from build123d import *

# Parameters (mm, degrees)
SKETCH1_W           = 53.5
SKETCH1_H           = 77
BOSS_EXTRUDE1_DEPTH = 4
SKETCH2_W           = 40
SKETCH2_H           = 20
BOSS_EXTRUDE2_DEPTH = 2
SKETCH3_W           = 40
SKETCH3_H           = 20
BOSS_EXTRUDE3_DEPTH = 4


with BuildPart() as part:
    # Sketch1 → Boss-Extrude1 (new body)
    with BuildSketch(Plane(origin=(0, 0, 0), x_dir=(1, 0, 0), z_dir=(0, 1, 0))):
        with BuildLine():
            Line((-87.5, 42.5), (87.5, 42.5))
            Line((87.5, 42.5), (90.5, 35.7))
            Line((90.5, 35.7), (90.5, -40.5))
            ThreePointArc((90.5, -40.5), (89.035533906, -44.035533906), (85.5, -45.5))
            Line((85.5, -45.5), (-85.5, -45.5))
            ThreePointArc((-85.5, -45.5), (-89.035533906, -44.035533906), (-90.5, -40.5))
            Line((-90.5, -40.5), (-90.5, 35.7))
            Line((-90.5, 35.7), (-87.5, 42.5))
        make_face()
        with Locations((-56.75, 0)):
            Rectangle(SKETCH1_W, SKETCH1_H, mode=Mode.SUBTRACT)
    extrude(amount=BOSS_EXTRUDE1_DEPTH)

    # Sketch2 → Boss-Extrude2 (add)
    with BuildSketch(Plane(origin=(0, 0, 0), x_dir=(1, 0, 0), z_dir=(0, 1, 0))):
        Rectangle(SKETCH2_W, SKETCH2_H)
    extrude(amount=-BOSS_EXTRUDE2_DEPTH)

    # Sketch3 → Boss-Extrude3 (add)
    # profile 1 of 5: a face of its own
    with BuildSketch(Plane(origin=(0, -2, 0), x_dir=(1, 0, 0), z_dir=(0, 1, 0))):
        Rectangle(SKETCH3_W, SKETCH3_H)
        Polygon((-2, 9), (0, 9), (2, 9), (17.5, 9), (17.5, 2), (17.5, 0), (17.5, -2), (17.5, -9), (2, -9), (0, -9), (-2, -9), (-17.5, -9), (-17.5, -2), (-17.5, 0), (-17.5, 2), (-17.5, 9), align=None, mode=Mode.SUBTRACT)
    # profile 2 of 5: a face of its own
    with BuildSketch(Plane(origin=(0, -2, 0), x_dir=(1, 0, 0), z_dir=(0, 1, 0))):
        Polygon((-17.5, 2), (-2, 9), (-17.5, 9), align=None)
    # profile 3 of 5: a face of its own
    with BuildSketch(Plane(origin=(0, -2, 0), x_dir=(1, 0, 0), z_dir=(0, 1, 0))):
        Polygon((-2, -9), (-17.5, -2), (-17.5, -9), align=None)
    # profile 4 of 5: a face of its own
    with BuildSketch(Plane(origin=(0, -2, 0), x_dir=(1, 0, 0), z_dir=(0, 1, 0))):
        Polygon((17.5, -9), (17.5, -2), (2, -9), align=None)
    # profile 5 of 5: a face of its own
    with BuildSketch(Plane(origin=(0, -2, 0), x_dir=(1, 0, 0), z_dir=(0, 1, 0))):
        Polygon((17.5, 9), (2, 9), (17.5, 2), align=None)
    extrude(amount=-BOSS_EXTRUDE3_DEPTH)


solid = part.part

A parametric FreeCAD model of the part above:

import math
import FreeCAD as App
import Part
import Sketcher
Q = App.Units.Quantity

doc = App.newDocument("Part")
body = doc.addObject("PartDesign::Body", "Body")

# Sketch on XZ plane
sketch1 = doc.addObject("Sketcher::SketchObject", "Sketch")
body.addObject(sketch1)
sketch1.AttachmentSupport = (doc.XZ_Plane, [""])
sketch1.MapMode = "FlatFace"
sketch1.addGeometry([
    Part.LineSegment(App.Vector(87.5, -42.5, 0), App.Vector(-87.5, -42.5, 0)),  # 0
    Part.LineSegment(App.Vector(-87.5, -42.5, 0), App.Vector(-90.5, -35.7, 0)),  # 1
    Part.LineSegment(App.Vector(-90.5, -35.7, 0), App.Vector(-90.5, 40.5, 0)),  # 2
    Part.ArcOfCircle(Part.Circle(App.Vector(-85.5, 40.5, 0), App.Vector(0, 0, 1), 5), math.radians(90), math.radians(180)),  # 3
    Part.LineSegment(App.Vector(-85.5, 45.5, 0), App.Vector(85.5, 45.5, 0)),  # 4
    Part.ArcOfCircle(Part.Circle(App.Vector(85.5, 40.5, 0), App.Vector(0, 0, 1), 5), math.radians(0), math.radians(90)),  # 5
    Part.LineSegment(App.Vector(90.5, 40.5, 0), App.Vector(90.5, -35.7, 0)),  # 6
    Part.LineSegment(App.Vector(90.5, -35.7, 0), App.Vector(87.5, -42.5, 0)),  # 7
    Part.LineSegment(App.Vector(-83.5, 38.5, 0), App.Vector(-83.5, -38.5, 0)),  # 8
    Part.LineSegment(App.Vector(-83.5, -38.5, 0), App.Vector(-30, -38.5, 0)),  # 9
    Part.LineSegment(App.Vector(-30, -38.5, 0), App.Vector(-30, 38.5, 0)),  # 10
    Part.LineSegment(App.Vector(-30, 38.5, 0), App.Vector(-83.5, 38.5, 0)),  # 11
], False)
sketch1.addConstraint([
    Sketcher.Constraint("Coincident", 0, 2, 1, 1),
    Sketcher.Constraint("Coincident", 1, 2, 2, 1),
    Sketcher.Constraint("Tangent", 2, 2, 3, 2),
    Sketcher.Constraint("Tangent", 3, 1, 4, 1),
    Sketcher.Constraint("Tangent", 4, 2, 5, 2),
    Sketcher.Constraint("Tangent", 5, 1, 6, 1),
    Sketcher.Constraint("Coincident", 6, 2, 7, 1),
    Sketcher.Constraint("Coincident", 7, 2, 0, 1),
    Sketcher.Constraint("Coincident", 8, 2, 9, 1),
    Sketcher.Constraint("Coincident", 9, 2, 10, 1),
    Sketcher.Constraint("Coincident", 10, 2, 11, 1),
    Sketcher.Constraint("Coincident", 11, 2, 8, 1),
    Sketcher.Constraint("Horizontal", 0),
    Sketcher.Constraint("Vertical", 2),
    Sketcher.Constraint("Horizontal", 4),
    Sketcher.Constraint("Vertical", 6),
    Sketcher.Constraint("Vertical", 8),
    Sketcher.Constraint("Horizontal", 9),
    Sketcher.Constraint("Vertical", 10),
    Sketcher.Constraint("Horizontal", 11),
    Sketcher.Constraint("Equal", 3, 5),
    Sketcher.Constraint("Symmetric", 1, 2, 6, 2, -2),
    Sketcher.Constraint("Equal", 1, 7),
    Sketcher.Constraint("Radius", 3, Q("5 mm")),
    Sketcher.Constraint("DistanceX", 0, 2, 0, 1, Q("175 mm")),
    Sketcher.Constraint("DistanceX", 4, 1, 4, 2, Q("171 mm")),
    Sketcher.Constraint("DistanceY", 8, 2, 8, 1, Q("77 mm")),
    Sketcher.Constraint("DistanceX", 9, 1, 9, 2, Q("53.5 mm")),
    Sketcher.Constraint("DistanceY", 2, 1, 2, 2, Q("76.2 mm")),
    Sketcher.Constraint("DistanceX", 9, 2, -1, 1, Q("30 mm")),
    Sketcher.Constraint("DistanceY", 0, 2, 3, 3, Q("83 mm")),
    Sketcher.Constraint("DistanceY", 0, 2, 8, 2, Q("4 mm")),
    Sketcher.Constraint("DistanceY", -1, 1, 3, 3, Q("40.5 mm")),
])
pad1 = doc.addObject("PartDesign::Pad", "Pad")
body.addObject(pad1)
pad1.Profile = sketch1
pad1.Length = 4
pad1.Reversed = True

# Sketch on XZ plane
sketch2 = doc.addObject("Sketcher::SketchObject", "Sketch001")
body.addObject(sketch2)
sketch2.AttachmentSupport = (doc.XZ_Plane, [""])
sketch2.MapMode = "FlatFace"
sketch2.addGeometry([
    Part.LineSegment(App.Vector(-20, -10, 0), App.Vector(-20, 10, 0)),
    Part.LineSegment(App.Vector(-20, 10, 0), App.Vector(20, 10, 0)),
    Part.LineSegment(App.Vector(20, 10, 0), App.Vector(20, -10, 0)),
    Part.LineSegment(App.Vector(20, -10, 0), App.Vector(-20, -10, 0)),
], False)
sketch2.addConstraint([
    Sketcher.Constraint("Coincident", 0, 2, 1, 1),
    Sketcher.Constraint("Coincident", 1, 2, 2, 1),
    Sketcher.Constraint("Coincident", 2, 2, 3, 1),
    Sketcher.Constraint("Coincident", 3, 2, 0, 1),
    Sketcher.Constraint("Vertical", 0),
    Sketcher.Constraint("Horizontal", 1),
    Sketcher.Constraint("Vertical", 2),
    Sketcher.Constraint("Horizontal", 3),
    Sketcher.Constraint("Symmetric", 0, 2, 2, 2, -1, 1),
    Sketcher.Constraint("DistanceX", 1, 1, 1, 2, Q("40 mm")),
    Sketcher.Constraint("DistanceY", 0, 1, 0, 2, Q("20 mm")),
])
pad2 = doc.addObject("PartDesign::Pad", "Pad001")
body.addObject(pad2)
pad2.Profile = sketch2
pad2.Length = 2

# Sketch on XZ plane
sketch3 = doc.addObject("Sketcher::SketchObject", "Sketch002")
body.addObject(sketch3)
sketch3.AttachmentSupport = (doc.XZ_Plane, [""])
sketch3.MapMode = "FlatFace"
sketch3.AttachmentOffset = App.Placement(App.Vector(0, 0, 2), App.Rotation())
sketch3.addGeometry([
    Part.LineSegment(App.Vector(-20, -10, 0), App.Vector(-20, 10, 0)),  # 0
    Part.LineSegment(App.Vector(-20, 10, 0), App.Vector(20, 10, 0)),  # 1
    Part.LineSegment(App.Vector(20, 10, 0), App.Vector(20, -10, 0)),  # 2
    Part.LineSegment(App.Vector(20, -10, 0), App.Vector(-20, -10, 0)),  # 3
    Part.LineSegment(App.Vector(-2, -9, 0), App.Vector(2, -9, 0)),  # 4
    Part.LineSegment(App.Vector(2, -9, 0), App.Vector(17.5, -2, 0)),  # 5
    Part.LineSegment(App.Vector(17.5, -2, 0), App.Vector(17.5, 2, 0)),  # 6
    Part.LineSegment(App.Vector(17.5, 2, 0), App.Vector(2, 9, 0)),  # 7
    Part.LineSegment(App.Vector(2, 9, 0), App.Vector(-2, 9, 0)),  # 8
    Part.LineSegment(App.Vector(-2, 9, 0), App.Vector(-17.5, 2, 0)),  # 9
    Part.LineSegment(App.Vector(-17.5, 2, 0), App.Vector(-17.5, -2, 0)),  # 10
    Part.LineSegment(App.Vector(-17.5, -2, 0), App.Vector(-2, -9, 0)),  # 11
], False)
sketch3.addConstraint([
    Sketcher.Constraint("Coincident", 0, 2, 1, 1),
    Sketcher.Constraint("Coincident", 1, 2, 2, 1),
    Sketcher.Constraint("Coincident", 2, 2, 3, 1),
    Sketcher.Constraint("Coincident", 3, 2, 0, 1),
    Sketcher.Constraint("Coincident", 4, 2, 5, 1),
    Sketcher.Constraint("Coincident", 5, 2, 6, 1),
    Sketcher.Constraint("Coincident", 6, 2, 7, 1),
    Sketcher.Constraint("Coincident", 7, 2, 8, 1),
    Sketcher.Constraint("Coincident", 8, 2, 9, 1),
    Sketcher.Constraint("Coincident", 9, 2, 10, 1),
    Sketcher.Constraint("Coincident", 10, 2, 11, 1),
    Sketcher.Constraint("Coincident", 11, 2, 4, 1),
    Sketcher.Constraint("Vertical", 0),
    Sketcher.Constraint("Horizontal", 1),
    Sketcher.Constraint("Vertical", 2),
    Sketcher.Constraint("Horizontal", 3),
    Sketcher.Constraint("Horizontal", 4),
    Sketcher.Constraint("Vertical", 6),
    Sketcher.Constraint("Horizontal", 8),
    Sketcher.Constraint("Vertical", 10),
    Sketcher.Constraint("Symmetric", 0, 2, 2, 2, -1, 1),
    Sketcher.Constraint("Symmetric", 4, 2, 8, 2, -1, 1),
    Sketcher.Constraint("Symmetric", 5, 2, 9, 2, -1, 1),
    Sketcher.Constraint("Parallel", 7, 11),
    Sketcher.Constraint("Horizontal", 6, 2, 9, 2),
    Sketcher.Constraint("Horizontal", 5, 2, 10, 2),
    Sketcher.Constraint("Vertical", 4, 2, 7, 2),
    Sketcher.Constraint("Equal", 8, 6),
    Sketcher.Constraint("DistanceX", 1, 1, 1, 2, Q("40 mm")),
    Sketcher.Constraint("DistanceX", 4, 1, 4, 2, Q("4 mm")),
    Sketcher.Constraint("DistanceY", 0, 1, 0, 2, Q("20 mm")),
    Sketcher.Constraint("DistanceY", 4, 2, -1, 1, Q("9 mm")),
    Sketcher.Constraint("DistanceX", -1, 1, 5, 2, Q("17.5 mm")),
])
pad3 = doc.addObject("PartDesign::Pad", "Pad002")
body.addObject(pad3)
pad3.Profile = sketch3
pad3.Length = 4

doc.recompute()
